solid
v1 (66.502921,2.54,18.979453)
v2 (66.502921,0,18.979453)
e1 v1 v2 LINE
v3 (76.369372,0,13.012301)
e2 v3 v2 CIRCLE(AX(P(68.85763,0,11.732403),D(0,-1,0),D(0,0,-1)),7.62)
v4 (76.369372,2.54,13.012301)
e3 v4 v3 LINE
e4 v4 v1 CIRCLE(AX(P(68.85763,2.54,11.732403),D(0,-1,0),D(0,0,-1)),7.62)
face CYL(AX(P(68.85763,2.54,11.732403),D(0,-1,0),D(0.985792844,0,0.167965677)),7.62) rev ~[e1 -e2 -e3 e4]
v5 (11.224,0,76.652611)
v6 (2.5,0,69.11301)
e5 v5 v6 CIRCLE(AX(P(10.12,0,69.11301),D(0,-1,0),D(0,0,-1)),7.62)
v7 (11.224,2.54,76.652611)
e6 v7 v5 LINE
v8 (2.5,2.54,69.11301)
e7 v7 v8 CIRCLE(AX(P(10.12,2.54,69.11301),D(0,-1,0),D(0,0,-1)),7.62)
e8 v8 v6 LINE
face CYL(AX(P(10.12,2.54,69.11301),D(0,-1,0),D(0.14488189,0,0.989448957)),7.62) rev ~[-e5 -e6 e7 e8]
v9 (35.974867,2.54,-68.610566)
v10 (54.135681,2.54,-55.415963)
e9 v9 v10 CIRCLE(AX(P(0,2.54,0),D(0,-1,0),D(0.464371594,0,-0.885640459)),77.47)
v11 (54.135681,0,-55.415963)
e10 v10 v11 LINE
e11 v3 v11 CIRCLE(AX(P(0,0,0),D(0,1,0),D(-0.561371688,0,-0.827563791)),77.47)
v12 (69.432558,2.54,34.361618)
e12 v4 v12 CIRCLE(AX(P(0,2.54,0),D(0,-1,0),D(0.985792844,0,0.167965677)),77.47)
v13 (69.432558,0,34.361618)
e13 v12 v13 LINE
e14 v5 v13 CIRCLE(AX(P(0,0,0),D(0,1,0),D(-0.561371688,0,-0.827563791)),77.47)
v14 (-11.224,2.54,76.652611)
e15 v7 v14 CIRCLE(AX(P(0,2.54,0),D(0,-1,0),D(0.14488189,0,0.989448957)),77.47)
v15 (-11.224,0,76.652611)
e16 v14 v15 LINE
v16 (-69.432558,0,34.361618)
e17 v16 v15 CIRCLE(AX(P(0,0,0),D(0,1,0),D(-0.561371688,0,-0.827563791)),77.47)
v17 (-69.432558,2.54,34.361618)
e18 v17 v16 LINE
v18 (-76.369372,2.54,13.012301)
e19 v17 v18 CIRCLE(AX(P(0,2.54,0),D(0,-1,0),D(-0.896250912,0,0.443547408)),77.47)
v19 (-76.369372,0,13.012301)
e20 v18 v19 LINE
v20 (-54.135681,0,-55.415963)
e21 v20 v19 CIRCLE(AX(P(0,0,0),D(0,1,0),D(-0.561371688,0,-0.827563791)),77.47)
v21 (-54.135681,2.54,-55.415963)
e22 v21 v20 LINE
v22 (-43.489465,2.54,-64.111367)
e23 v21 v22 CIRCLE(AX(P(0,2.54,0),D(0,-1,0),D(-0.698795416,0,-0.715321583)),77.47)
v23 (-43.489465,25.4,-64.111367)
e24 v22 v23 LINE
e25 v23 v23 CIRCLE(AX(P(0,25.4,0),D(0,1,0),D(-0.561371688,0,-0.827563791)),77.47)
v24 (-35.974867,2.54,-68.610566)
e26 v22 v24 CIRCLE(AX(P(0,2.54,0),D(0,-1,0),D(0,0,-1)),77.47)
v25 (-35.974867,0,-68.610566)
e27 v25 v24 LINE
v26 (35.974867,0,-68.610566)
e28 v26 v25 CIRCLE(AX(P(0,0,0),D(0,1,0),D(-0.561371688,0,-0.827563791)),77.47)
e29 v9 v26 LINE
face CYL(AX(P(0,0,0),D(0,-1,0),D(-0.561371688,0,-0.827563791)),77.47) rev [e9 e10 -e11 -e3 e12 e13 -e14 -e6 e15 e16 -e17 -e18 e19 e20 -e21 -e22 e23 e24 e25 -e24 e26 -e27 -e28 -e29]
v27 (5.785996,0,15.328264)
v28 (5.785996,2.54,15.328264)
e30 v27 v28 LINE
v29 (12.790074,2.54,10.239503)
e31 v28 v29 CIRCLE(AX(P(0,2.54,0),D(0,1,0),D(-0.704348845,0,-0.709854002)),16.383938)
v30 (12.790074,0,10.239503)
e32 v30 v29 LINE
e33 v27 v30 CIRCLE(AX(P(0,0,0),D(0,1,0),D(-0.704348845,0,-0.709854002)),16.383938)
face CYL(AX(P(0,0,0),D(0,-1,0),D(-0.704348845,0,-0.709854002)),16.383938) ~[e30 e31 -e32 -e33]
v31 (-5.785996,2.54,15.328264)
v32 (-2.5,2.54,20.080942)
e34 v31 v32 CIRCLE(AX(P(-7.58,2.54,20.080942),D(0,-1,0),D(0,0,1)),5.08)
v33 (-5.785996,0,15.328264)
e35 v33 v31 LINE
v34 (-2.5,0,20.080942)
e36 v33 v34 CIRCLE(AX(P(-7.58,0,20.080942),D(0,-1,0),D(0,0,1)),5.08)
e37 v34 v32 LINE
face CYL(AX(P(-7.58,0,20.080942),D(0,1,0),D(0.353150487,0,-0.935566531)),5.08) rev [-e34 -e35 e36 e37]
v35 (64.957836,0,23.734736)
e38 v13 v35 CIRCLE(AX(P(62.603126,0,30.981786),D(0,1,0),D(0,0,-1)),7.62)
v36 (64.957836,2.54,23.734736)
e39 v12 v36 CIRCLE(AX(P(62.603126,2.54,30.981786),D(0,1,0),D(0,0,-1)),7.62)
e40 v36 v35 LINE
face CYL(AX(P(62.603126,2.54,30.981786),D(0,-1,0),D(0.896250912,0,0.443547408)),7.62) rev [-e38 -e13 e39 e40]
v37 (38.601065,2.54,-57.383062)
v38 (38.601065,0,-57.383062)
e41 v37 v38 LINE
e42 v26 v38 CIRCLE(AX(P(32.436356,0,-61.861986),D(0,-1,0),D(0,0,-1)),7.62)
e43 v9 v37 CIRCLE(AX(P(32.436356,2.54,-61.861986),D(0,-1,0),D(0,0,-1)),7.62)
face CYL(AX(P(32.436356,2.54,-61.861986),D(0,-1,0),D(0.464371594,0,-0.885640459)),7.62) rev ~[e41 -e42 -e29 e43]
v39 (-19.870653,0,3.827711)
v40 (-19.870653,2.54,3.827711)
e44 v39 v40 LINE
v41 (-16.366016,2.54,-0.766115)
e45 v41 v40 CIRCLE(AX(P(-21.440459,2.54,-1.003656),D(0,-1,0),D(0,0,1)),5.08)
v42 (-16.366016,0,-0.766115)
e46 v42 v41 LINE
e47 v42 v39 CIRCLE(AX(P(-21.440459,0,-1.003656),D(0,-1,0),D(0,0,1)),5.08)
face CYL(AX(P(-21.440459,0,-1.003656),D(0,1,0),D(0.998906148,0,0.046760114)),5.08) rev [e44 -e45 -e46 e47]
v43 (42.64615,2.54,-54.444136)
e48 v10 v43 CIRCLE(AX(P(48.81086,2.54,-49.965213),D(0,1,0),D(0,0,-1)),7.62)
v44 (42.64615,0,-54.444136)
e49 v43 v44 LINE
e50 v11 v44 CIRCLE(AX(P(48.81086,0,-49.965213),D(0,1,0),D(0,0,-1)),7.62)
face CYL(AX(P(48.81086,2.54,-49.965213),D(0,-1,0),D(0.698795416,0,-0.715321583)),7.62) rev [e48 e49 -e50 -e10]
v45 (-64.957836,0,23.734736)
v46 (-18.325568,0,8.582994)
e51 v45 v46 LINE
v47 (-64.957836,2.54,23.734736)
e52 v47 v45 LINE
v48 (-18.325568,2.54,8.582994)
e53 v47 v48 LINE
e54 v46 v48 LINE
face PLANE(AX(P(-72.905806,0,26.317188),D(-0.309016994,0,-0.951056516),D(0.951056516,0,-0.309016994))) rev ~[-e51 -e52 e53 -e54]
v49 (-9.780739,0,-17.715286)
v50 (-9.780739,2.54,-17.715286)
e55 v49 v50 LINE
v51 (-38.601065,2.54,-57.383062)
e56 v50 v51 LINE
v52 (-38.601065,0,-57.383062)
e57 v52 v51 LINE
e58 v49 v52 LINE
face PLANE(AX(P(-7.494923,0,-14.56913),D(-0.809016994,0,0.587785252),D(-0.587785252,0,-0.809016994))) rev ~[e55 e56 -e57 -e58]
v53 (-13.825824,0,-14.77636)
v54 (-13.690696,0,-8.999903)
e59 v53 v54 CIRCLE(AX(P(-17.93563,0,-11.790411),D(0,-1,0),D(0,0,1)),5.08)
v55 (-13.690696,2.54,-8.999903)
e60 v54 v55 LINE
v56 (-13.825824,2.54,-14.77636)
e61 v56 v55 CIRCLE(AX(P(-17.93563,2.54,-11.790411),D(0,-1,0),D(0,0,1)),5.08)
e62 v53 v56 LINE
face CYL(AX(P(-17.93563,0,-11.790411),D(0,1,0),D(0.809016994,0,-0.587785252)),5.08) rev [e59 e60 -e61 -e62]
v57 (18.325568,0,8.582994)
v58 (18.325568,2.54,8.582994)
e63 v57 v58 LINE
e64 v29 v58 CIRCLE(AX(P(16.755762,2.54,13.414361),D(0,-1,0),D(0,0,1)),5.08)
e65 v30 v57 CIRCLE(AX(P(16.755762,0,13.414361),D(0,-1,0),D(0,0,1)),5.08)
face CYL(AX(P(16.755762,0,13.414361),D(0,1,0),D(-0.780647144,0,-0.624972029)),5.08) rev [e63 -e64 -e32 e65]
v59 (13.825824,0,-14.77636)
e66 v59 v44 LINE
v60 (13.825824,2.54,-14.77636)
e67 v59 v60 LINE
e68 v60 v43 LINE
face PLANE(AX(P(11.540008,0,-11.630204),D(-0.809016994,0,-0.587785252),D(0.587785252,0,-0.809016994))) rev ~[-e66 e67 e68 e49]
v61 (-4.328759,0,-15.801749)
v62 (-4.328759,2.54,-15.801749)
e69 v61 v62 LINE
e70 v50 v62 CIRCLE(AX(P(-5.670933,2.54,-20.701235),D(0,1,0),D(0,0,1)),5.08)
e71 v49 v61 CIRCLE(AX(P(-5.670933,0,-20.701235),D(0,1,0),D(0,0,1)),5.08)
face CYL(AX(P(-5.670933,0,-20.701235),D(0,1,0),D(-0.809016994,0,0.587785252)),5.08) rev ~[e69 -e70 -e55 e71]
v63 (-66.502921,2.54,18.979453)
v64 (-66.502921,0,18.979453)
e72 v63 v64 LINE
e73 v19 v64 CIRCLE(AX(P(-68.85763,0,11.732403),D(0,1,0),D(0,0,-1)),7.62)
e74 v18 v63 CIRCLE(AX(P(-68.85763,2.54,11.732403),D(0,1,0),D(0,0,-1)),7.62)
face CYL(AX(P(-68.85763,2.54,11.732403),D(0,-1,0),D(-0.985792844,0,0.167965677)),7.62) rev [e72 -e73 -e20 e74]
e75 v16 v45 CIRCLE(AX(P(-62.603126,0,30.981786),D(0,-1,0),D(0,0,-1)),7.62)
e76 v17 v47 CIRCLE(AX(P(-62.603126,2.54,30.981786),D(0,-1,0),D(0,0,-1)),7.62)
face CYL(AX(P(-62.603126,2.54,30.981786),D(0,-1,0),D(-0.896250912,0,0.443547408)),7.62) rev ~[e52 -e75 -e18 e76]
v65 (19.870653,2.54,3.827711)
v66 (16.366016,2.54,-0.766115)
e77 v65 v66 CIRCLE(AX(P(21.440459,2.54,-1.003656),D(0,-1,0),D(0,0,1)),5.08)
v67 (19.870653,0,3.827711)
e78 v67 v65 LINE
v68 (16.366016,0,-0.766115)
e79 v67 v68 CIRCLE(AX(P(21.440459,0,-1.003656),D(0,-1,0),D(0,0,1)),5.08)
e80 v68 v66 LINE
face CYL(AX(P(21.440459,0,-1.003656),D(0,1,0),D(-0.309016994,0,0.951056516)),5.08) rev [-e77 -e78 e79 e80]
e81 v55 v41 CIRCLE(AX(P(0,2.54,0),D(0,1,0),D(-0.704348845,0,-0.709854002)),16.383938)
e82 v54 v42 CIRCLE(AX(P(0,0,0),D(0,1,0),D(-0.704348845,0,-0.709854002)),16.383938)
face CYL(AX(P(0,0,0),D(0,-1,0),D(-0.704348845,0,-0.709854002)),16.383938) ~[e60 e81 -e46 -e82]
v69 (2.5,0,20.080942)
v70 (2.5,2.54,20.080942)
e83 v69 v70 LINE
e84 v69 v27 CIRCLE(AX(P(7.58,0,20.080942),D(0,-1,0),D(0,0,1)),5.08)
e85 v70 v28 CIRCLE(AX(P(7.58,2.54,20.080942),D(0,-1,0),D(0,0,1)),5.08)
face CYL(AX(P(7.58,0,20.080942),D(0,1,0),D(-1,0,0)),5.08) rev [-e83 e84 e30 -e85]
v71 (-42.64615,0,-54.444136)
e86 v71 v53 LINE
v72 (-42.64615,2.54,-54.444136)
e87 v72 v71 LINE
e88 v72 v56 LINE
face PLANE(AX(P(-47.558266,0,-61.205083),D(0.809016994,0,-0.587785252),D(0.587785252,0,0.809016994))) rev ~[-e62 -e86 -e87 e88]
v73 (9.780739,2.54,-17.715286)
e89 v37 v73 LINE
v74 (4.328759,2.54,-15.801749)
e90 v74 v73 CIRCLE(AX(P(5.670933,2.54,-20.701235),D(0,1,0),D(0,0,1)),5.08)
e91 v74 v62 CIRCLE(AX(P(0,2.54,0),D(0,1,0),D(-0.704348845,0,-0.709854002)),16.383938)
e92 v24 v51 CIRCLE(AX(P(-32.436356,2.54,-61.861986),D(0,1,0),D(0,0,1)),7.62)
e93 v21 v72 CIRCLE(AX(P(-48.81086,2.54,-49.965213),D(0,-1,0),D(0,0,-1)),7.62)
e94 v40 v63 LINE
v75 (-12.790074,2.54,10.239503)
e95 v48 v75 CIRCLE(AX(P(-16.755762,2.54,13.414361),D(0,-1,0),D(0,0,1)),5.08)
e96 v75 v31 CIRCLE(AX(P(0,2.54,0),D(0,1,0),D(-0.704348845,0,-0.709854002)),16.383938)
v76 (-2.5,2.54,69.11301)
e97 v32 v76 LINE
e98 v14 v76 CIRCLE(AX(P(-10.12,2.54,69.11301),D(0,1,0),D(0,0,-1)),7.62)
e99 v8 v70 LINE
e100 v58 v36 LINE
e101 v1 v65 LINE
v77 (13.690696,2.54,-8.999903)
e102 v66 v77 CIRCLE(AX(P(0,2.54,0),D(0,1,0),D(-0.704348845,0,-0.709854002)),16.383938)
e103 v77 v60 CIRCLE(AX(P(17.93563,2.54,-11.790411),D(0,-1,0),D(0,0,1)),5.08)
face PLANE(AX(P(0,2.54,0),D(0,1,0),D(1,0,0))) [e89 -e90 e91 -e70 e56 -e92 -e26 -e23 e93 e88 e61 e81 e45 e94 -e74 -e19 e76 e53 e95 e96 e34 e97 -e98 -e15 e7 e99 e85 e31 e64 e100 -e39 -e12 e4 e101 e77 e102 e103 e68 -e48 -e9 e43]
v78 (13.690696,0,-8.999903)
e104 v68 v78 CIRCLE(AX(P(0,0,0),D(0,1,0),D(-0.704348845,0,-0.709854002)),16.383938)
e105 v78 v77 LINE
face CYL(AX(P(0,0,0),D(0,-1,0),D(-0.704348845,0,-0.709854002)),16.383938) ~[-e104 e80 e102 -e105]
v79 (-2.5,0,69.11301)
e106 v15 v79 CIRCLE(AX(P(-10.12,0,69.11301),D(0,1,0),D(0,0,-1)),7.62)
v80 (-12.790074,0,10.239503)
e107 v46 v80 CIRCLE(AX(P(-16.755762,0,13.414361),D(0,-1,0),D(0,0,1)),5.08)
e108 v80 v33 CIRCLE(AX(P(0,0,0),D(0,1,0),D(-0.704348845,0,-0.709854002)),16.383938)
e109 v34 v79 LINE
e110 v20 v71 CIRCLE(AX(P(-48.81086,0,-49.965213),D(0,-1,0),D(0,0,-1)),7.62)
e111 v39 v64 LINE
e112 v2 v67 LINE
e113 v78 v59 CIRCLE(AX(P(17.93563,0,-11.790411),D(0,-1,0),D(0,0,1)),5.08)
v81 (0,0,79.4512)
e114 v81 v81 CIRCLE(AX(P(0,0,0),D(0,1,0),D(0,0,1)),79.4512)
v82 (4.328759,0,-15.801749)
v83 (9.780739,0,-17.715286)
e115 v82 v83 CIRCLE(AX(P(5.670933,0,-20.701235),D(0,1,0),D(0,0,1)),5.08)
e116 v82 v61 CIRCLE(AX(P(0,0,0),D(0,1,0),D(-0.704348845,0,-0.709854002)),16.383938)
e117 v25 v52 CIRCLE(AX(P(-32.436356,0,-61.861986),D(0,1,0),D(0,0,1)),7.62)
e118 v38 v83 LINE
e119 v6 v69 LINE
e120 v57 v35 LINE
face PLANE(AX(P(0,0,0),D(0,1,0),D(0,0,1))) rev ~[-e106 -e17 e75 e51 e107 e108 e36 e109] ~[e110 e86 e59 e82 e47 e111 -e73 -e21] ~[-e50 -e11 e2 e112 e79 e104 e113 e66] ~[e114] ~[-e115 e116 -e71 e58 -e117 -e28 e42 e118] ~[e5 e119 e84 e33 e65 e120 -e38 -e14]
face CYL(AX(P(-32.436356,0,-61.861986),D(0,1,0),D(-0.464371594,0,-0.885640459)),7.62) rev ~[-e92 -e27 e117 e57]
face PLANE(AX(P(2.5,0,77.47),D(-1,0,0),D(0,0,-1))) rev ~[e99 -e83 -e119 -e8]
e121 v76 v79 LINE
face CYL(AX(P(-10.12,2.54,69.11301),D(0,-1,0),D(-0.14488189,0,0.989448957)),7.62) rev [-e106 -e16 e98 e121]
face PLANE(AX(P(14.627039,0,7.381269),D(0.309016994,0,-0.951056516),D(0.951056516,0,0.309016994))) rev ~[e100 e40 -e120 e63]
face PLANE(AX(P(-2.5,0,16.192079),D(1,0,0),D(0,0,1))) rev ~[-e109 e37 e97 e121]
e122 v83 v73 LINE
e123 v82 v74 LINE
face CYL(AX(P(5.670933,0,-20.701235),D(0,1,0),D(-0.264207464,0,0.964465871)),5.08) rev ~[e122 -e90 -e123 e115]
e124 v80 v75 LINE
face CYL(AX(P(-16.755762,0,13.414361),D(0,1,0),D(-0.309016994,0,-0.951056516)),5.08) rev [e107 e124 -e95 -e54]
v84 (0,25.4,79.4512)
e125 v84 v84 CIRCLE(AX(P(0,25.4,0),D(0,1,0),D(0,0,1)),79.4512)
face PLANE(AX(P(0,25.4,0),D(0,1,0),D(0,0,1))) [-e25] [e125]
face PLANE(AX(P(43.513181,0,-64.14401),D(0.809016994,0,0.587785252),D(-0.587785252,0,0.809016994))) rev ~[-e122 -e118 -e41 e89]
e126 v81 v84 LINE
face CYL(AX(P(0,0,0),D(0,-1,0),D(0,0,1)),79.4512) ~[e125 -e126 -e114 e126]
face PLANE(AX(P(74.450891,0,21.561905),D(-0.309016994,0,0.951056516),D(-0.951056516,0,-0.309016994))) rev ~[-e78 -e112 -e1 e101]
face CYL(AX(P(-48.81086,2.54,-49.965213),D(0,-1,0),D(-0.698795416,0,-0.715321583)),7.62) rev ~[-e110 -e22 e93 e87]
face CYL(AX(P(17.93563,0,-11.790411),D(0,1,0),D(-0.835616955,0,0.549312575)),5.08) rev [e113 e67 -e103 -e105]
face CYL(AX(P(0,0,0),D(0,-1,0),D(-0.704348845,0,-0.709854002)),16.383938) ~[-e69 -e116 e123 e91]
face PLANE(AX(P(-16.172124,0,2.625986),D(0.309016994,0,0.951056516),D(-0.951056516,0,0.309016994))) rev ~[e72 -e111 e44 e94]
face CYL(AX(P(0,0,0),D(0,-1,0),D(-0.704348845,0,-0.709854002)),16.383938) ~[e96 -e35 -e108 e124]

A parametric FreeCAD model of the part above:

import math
import FreeCAD as App
import Part
import Sketcher
from FreeCAD import Vector
Q = App.Units.Quantity


def edges_at(feature, points):
    """Names of the edges that pass closest to the given points."""
    edges = feature.Shape.Edges
    near = lambda p: min(range(len(edges)), key=lambda i: edges[i].distToShape(Part.Vertex(*p))[0])
    return sorted({f"Edge{near(p) + 1}" for p in points})

doc = App.newDocument("Part")
params = doc.addObject("Spreadsheet::Sheet", "Params")
for row, (alias, value) in enumerate([
    ("pad1_length", "0.1 in"),
    ("sketch2_diameter", "6.1 in"),
    ("sketch2_diameter2", "6.256 in"),
    ("pad2_length", "1 in"),
    ("fillet_radius", "0.3 in"),
    ("fillet2_radius", "0.2 in"),
], start=1):
    params.set(f"A{row}", alias)
    params.set(f"B{row}", "=" + value)
    params.setAlias(f"B{row}", alias)

body = doc.addObject("PartDesign::Body", "Body")

# Sketch on XZ plane
sketch1 = body.newObject("Sketcher::SketchObject", "Sketch")
sketch1.AttachmentSupport = (doc.getObject("XZ_Plane"), [""])
sketch1.MapMode = "FlatFace"
sketch1.addGeometry(Part.LineSegment(Vector(-7, -15, 0), Vector(-44, -64, 0)), False)
sketch1.addGeometry(Part.LineSegment(Vector(-44, -64, 0), Vector(-48, -61, 0)), False)
sketch1.addGeometry(Part.LineSegment(Vector(-48, -61, 0), Vector(-12, -12, 0)), False)
sketch1.addGeometry(Part.ArcOfCircle(Part.Circle(Vector(0, 0, 0), Vector(0, 0, 1), 16), math.radians(171), math.radians(225)), False)
sketch1.addGeometry(Part.LineSegment(Vector(-16, 3, 0), Vector(-74, 22, 0)), False)
sketch1.addGeometry(Part.LineSegment(Vector(-74, 22, 0), Vector(-73, 26, 0)), False)
sketch1.addGeometry(Part.LineSegment(Vector(-73, 26, 0), Vector(-15, 7, 0)), False)
sketch1.addGeometry(Part.ArcOfCircle(Part.Circle(Vector(0, 0, 0), Vector(0, 0, 1), 16), math.radians(99), math.radians(153)), False)
sketch1.addGeometry(Part.LineSegment(Vector(-2, 16, 0), Vector(-2, 77, 0)), False)
sketch1.addGeometry(Part.LineSegment(Vector(-2, 77, 0), Vector(2, 77, 0)), False)
sketch1.addGeometry(Part.LineSegment(Vector(2, 77, 0), Vector(2, 16, 0)), False)
sketch1.addGeometry(Part.ArcOfCircle(Part.Circle(Vector(0, 0, 0), Vector(0, 0, 1), 16), math.radians(27), math.radians(81)), False)
sketch1.addGeometry(Part.LineSegment(Vector(15, 7, 0), Vector(73, 26, 0)), False)
sketch1.addGeometry(Part.LineSegment(Vector(73, 26, 0), Vector(74, 22, 0)), False)
sketch1.addGeometry(Part.LineSegment(Vector(74, 22, 0), Vector(16, 3, 0)), False)
sketch1.addGeometry(Part.ArcOfCircle(Part.Circle(Vector(0, 0, 0), Vector(0, 0, 1), 16), math.radians(-45), math.radians(9)), False)
sketch1.addGeometry(Part.LineSegment(Vector(12, -12, 0), Vector(48, -61, 0)), False)
sketch1.addGeometry(Part.LineSegment(Vector(48, -61, 0), Vector(44, -64, 0)), False)
sketch1.addGeometry(Part.LineSegment(Vector(44, -64, 0), Vector(7, -15, 0)), False)
sketch1.addGeometry(Part.ArcOfCircle(Part.Circle(Vector(0, 0, 0), Vector(0, 0, 1), 16), math.radians(-117), math.radians(-63)), False)
sketch1.addConstraint(Sketcher.Constraint("Coincident", 0, 2, 1, 1))
sketch1.addConstraint(Sketcher.Constraint("Coincident", 1, 2, 2, 1))
sketch1.addConstraint(Sketcher.Constraint("Coincident", 2, 2, 3, 2))
sketch1.addConstraint(Sketcher.Constraint("Coincident", 3, 1, 4, 1))
sketch1.addConstraint(Sketcher.Constraint("Coincident", 4, 2, 5, 1))
sketch1.addConstraint(Sketcher.Constraint("Coincident", 5, 2, 6, 1))
sketch1.addConstraint(Sketcher.Constraint("Coincident", 6, 2, 7, 2))
sketch1.addConstraint(Sketcher.Constraint("Coincident", 7, 1, 8, 1))
sketch1.addConstraint(Sketcher.Constraint("Coincident", 8, 2, 9, 1))
sketch1.addConstraint(Sketcher.Constraint("Coincident", 9, 2, 10, 1))
sketch1.addConstraint(Sketcher.Constraint("Coincident", 10, 2, 11, 2))
sketch1.addConstraint(Sketcher.Constraint("Coincident", 11, 1, 12, 1))
sketch1.addConstraint(Sketcher.Constraint("Coincident", 12, 2, 13, 1))
sketch1.addConstraint(Sketcher.Constraint("Coincident", 13, 2, 14, 1))
sketch1.addConstraint(Sketcher.Constraint("Coincident", 14, 2, 15, 2))
sketch1.addConstraint(Sketcher.Constraint("Coincident", 15, 1, 16, 1))
sketch1.addConstraint(Sketcher.Constraint("Coincident", 16, 2, 17, 1))
sketch1.addConstraint(Sketcher.Constraint("Coincident", 17, 2, 18, 1))
sketch1.addConstraint(Sketcher.Constraint("Coincident", 18, 2, 19, 2))
sketch1.addConstraint(Sketcher.Constraint("Coincident", 19, 1, 0, 1))
sketch1.addConstraint(Sketcher.Constraint("Vertical", 8))
sketch1.addConstraint(Sketcher.Constraint("Horizontal", 9))
sketch1.addConstraint(Sketcher.Constraint("Vertical", 10))
sketch1.addConstraint(Sketcher.Constraint("Coincident", 3, 3, -1, 1))
sketch1.addConstraint(Sketcher.Constraint("Coincident", 7, 3, -1, 1))
sketch1.addConstraint(Sketcher.Constraint("Coincident", 11, 3, -1, 1))
sketch1.addConstraint(Sketcher.Constraint("Coincident", 15, 3, -1, 1))
sketch1.addConstraint(Sketcher.Constraint("Coincident", 19, 3, -1, 1))
sketch1.addConstraint(Sketcher.Constraint("Equal", 3, 7))
sketch1.addConstraint(Sketcher.Constraint("Equal", 7, 11))
sketch1.addConstraint(Sketcher.Constraint("Equal", 11, 15))
sketch1.addConstraint(Sketcher.Constraint("Equal", 15, 19))
sketch1.addConstraint(Sketcher.Constraint("Symmetric", 5, 2, 12, 2, -2))
sketch1.addConstraint(Sketcher.Constraint("Symmetric", 4, 2, 13, 2, -2))
sketch1.addConstraint(Sketcher.Constraint("Symmetric", 1, 2, 16, 2, -2))
sketch1.addConstraint(Sketcher.Constraint("Symmetric", 0, 2, 17, 2, -2))
sketch1.addConstraint(Sketcher.Constraint("Perpendicular", 0, 1))
sketch1.addConstraint(Sketcher.Constraint("Perpendicular", 1, 2))
sketch1.addConstraint(Sketcher.Constraint("Perpendicular", 4, 5))
sketch1.addConstraint(Sketcher.Constraint("Perpendicular", 5, 6))
sketch1.addConstraint(Sketcher.Constraint("Perpendicular", 12, 13))
sketch1.addConstraint(Sketcher.Constraint("Perpendicular", 13, 14))
sketch1.addConstraint(Sketcher.Constraint("Perpendicular", 16, 17))
sketch1.addConstraint(Sketcher.Constraint("Perpendicular", 17, 18))
sketch1.addConstraint(Sketcher.Constraint("Horizontal", 7, 1, 10, 2))
sketch1.addConstraint(Sketcher.Constraint("Equal", 0, 2))
sketch1.addConstraint(Sketcher.Constraint("Equal", 2, 4))
sketch1.addConstraint(Sketcher.Constraint("Equal", 1, 5))
sketch1.addConstraint(Sketcher.Constraint("Equal", 4, 6))
sketch1.addConstraint(Sketcher.Constraint("Angle", 0, Q("-126 deg")))
sketch1.addConstraint(Sketcher.Constraint("Angle", 4, Q("162 deg")))
sketch1.addConstraint(Sketcher.Constraint("DistanceY", -1, 1, 8, 2, Q("3.05 in")))
sketch1.addConstraint(Sketcher.Constraint("DistanceX", 9, 1, 9, 2, 5.0))
sketch1.addConstraint(Sketcher.Constraint("Radius", 3, 16.383938))
sketch1.addConstraint(Sketcher.Constraint("Distance", 1, 5.0))
sketch1.addConstraint(Sketcher.Constraint("DistanceY", 3, 1, 5, 2, 23.691202))
pad1 = body.newObject("PartDesign::Pad", "Pad")
pad1.Profile = sketch1
pad1.setExpression("Length", "Params.pad1_length")
pad1.Reversed = True

# Sketch on XZ plane
sketch2 = body.newObject("Sketcher::SketchObject", "Sketch001")
sketch2.AttachmentSupport = (doc.getObject("XZ_Plane"), [""])
sketch2.MapMode = "FlatFace"
sketch2.addGeometry(Part.Circle(Vector(0, 0, 0), Vector(0, 0, 1), 79), False)
sketch2.addGeometry(Part.Circle(Vector(0, 0, 0), Vector(0, 0, 1), 77), False)
sketch2.addConstraint(Sketcher.Constraint("Coincident", 0, 3, -1, 1))
sketch2.addConstraint(Sketcher.Constraint("Coincident", 1, 3, -1, 1))
sketch2.addConstraint(Sketcher.Constraint("Diameter", 1, Q("6.1 in")))
sketch2.addConstraint(Sketcher.Constraint("Diameter", 0, Q("6.256 in")))
sketch2.setExpression("Constraints[2]", "Params.sketch2_diameter")
sketch2.setExpression("Constraints[3]", "Params.sketch2_diameter2")
pad2 = body.newObject("PartDesign::Pad", "Pad001")
pad2.Profile = sketch2
pad2.setExpression("Length", "Params.pad2_length")
pad2.Reversed = True
doc.recompute()

fillet = body.newObject("PartDesign::Fillet", "Fillet")
fillet.Base = (pad2, edges_at(pad2, [
    (72.867, 1.27, 26.305),
    (47.535, 1.27, -61.172),
    (-43.489, 1.27, -64.111),
    (-74.413, 1.27, 21.549),
    (-2.5, 1.27, 77.43),
    (-47.535, 1.27, -61.172),
    (43.489, 1.27, -64.111),
    (74.413, 1.27, 21.549),
    (2.5, 1.27, 77.43),
    (-72.867, 1.27, 26.305),
]))
fillet.setExpression("Radius", "Params.fillet_radius")
doc.recompute()

fillet2 = body.newObject("PartDesign::Fillet", "Fillet001")
fillet2.Base = (fillet, edges_at(fillet, [
    (-2.5, 1.27, 16.192),
    (-14.627, 1.27, 7.381),
    (-16.172, 1.27, 2.626),
    (-11.54, 1.27, -11.63),
    (-7.495, 1.27, -14.569),
    (7.495, 1.27, -14.569),
    (11.54, 1.27, -11.63),
    (16.172, 1.27, 2.626),
    (14.627, 1.27, 7.381),
    (2.5, 1.27, 16.192),
]))
fillet2.setExpression("Radius", "Params.fillet2_radius")

doc.recompute()
